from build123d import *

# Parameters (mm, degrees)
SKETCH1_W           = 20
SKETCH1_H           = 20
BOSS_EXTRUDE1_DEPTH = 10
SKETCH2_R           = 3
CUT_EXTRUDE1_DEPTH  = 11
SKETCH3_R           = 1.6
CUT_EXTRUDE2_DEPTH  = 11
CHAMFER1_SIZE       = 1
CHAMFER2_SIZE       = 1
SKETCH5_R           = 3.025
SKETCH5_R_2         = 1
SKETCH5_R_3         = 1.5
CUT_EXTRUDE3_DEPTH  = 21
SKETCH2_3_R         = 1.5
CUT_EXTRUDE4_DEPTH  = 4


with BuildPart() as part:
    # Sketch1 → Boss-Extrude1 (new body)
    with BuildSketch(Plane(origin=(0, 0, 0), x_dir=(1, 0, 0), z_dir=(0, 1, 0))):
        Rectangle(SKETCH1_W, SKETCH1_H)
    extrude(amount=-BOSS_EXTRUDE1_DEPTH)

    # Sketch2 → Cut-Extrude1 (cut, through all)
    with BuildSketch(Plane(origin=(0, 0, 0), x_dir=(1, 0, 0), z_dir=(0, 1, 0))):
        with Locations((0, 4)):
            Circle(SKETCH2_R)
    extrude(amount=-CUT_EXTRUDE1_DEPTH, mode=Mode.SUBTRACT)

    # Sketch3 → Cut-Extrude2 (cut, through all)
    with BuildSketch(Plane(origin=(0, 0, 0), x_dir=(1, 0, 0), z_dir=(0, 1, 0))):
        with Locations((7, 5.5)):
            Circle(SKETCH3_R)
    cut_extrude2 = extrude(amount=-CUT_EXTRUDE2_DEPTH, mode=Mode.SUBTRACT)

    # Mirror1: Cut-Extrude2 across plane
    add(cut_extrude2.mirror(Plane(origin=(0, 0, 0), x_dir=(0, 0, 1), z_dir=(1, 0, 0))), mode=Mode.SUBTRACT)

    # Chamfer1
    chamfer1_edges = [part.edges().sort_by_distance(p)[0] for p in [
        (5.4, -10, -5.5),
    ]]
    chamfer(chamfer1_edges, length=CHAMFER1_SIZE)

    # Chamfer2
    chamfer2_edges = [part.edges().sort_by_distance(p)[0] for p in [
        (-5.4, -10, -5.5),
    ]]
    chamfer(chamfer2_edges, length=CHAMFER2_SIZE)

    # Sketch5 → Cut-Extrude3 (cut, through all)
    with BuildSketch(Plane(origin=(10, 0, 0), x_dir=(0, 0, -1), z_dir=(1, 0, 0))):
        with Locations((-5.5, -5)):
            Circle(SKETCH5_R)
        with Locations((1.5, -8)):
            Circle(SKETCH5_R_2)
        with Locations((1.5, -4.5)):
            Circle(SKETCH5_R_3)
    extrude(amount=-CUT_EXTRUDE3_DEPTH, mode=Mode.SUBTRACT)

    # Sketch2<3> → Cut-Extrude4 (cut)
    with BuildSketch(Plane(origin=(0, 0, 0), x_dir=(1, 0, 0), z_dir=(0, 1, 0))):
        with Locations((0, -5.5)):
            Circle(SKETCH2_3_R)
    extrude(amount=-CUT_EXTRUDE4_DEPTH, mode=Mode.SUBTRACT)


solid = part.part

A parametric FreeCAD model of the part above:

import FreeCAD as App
import Part
import Sketcher
from FreeCAD import Vector
Q = App.Units.Quantity


def edges_at(feature, points):
    """Names of the edges that pass closest to the given points."""
    edges = feature.Shape.Edges
    near = lambda p: min(range(len(edges)), key=lambda i: edges[i].distToShape(Part.Vertex(*p))[0])
    return sorted({f"Edge{near(p) + 1}" for p in points})

doc = App.newDocument("Part")
body = doc.addObject("PartDesign::Body", "Body")

sketch1 = body.newObject("Sketcher::SketchObject", "Sketch")
sketch1.AttachmentSupport = (doc.getObject("XZ_Plane"), [""])
sketch1.MapMode = "FlatFace"
sketch1.addGeometry([
    Part.LineSegment(Vector(-10, -10, 0), Vector(-10, 10, 0)),
    Part.LineSegment(Vector(-10, 10, 0), Vector(10, 10, 0)),
    Part.LineSegment(Vector(10, 10, 0), Vector(10, -10, 0)),
    Part.LineSegment(Vector(10, -10, 0), Vector(-10, -10, 0)),
], False)
sketch1.addConstraint([
    Sketcher.Constraint("Coincident", 0, 2, 1, 1),
    Sketcher.Constraint("Coincident", 1, 2, 2, 1),
    Sketcher.Constraint("Coincident", 2, 2, 3, 1),
    Sketcher.Constraint("Coincident", 3, 2, 0, 1),
    Sketcher.Constraint("Vertical", 0),
    Sketcher.Constraint("Horizontal", 1),
    Sketcher.Constraint("Vertical", 2),
    Sketcher.Constraint("Horizontal", 3),
    Sketcher.Constraint("Symmetric", 0, 2, 2, 2, -1, 1),
    Sketcher.Constraint("Equal", 3, 0),
    Sketcher.Constraint("DistanceX", 1, 1, 1, 2, Q("20 mm")),
])
pad1 = body.newObject("PartDesign::Pad", "Pad")
pad1.Profile = sketch1
pad1.Length = 10

sketch2 = body.newObject("Sketcher::SketchObject", "Sketch001")
sketch2.AttachmentSupport = (doc.getObject("XZ_Plane"), [""])
sketch2.MapMode = "FlatFace"
sketch2.addGeometry(Part.Circle(Vector(0, -4, 0), Vector(0, 0, 1), 3), False)
sketch2.addConstraint([
    Sketcher.Constraint("PointOnObject", 0, 3, -2),
    Sketcher.Constraint("Diameter", 0, Q("6 mm")),
    Sketcher.Constraint("DistanceY", 0, 3, -1, 1, Q("4 mm")),
])
pocket1 = body.newObject("PartDesign::Pocket", "Pocket")
pocket1.Profile = sketch2
pocket1.Type = "ThroughAll"
pocket1.Reversed = True

sketch3 = body.newObject("Sketcher::SketchObject", "Sketch002")
sketch3.AttachmentSupport = (doc.getObject("XZ_Plane"), [""])
sketch3.MapMode = "FlatFace"
sketch3.addGeometry(Part.Circle(Vector(7, -5.5, 0), Vector(0, 0, 1), 1.6), False)
sketch3.addConstraint([
    Sketcher.Constraint("Diameter", 0, Q("3.2 mm")),
    Sketcher.Constraint("DistanceX", -1, 1, 0, 3, Q("7 mm")),
    Sketcher.Constraint("DistanceY", 0, 3, -1, 1, Q("5.5 mm")),
])
pocket2 = body.newObject("PartDesign::Pocket", "Pocket001")
pocket2.Profile = sketch3
pocket2.Type = "ThroughAll"
pocket2.Reversed = True
doc.recompute()

mirrored = body.newObject("PartDesign::Mirrored", "Mirrored")
mirrored.Originals = [pocket2]
mirrored.MirrorPlane = (doc.getObject("YZ_Plane"), [""])
body.Tip = mirrored
doc.recompute()

chamfer = body.newObject("PartDesign::Chamfer", "Chamfer")
chamfer.Base = (mirrored, edges_at(mirrored, [(5.4, -10, -5.5)]))
chamfer.Size = 1
doc.recompute()

chamfer2 = body.newObject("PartDesign::Chamfer", "Chamfer001")
chamfer2.Base = (chamfer, edges_at(chamfer, [(-5.4, -10, -5.5)]))
chamfer2.Size = 1

sketch4 = body.newObject("Sketcher::SketchObject", "Sketch003")
sketch4.AttachmentSupport = (doc.getObject("YZ_Plane"), [""])
sketch4.MapMode = "FlatFace"
sketch4.AttachmentOffset = App.Placement(Vector(0, 0, 10), App.Rotation())
sketch4.addGeometry([
    Part.Circle(Vector(-5, 5.5, 0), Vector(0, 0, 1), 3.025),
    Part.Circle(Vector(-8, -1.5, 0), Vector(0, 0, 1), 1),
    Part.Circle(Vector(-4.5, -1.5, 0), Vector(0, 0, 1), 1.5),
], False)
sketch4.addConstraint([
    Sketcher.Constraint("Horizontal", 1, 3, 2, 3),
    Sketcher.Constraint("Diameter", 1, Q("2 mm")),
    Sketcher.Constraint("Diameter", 2, Q("3 mm")),
    Sketcher.Constraint("Diameter", 0, Q("6.05 mm")),
    Sketcher.Constraint("DistanceX", 0, 3, -1, 1, Q("5 mm")),
    Sketcher.Constraint("DistanceX", 1, 3, -1, 1, Q("8 mm")),
    Sketcher.Constraint("DistanceY", 1, 3, 0, 3, Q("7 mm")),
    Sketcher.Constraint("DistanceY", -1, 1, 0, 3, Q("5.5 mm")),
    Sketcher.Constraint("DistanceX", 2, 3, -1, 1, Q("4.5 mm")),
])
pocket3 = body.newObject("PartDesign::Pocket", "Pocket002")
pocket3.Profile = sketch4
pocket3.Type = "ThroughAll"

sketch5 = body.newObject("Sketcher::SketchObject", "Sketch004")
sketch5.AttachmentSupport = (doc.getObject("XZ_Plane"), [""])
sketch5.MapMode = "FlatFace"
sketch5.addGeometry(Part.Circle(Vector(0, 5.5, 0), Vector(0, 0, 1), 1.5), False)
sketch5.addConstraint([
    Sketcher.Constraint("PointOnObject", 0, 3, -2),
    Sketcher.Constraint("Diameter", 0, Q("3 mm")),
    Sketcher.Constraint("DistanceY", -1, 1, 0, 3, Q("5.5 mm")),
])
pocket4 = body.newObject("PartDesign::Pocket", "Pocket003")
pocket4.Profile = sketch5
pocket4.Length = 4
pocket4.Reversed = True

doc.recompute()
